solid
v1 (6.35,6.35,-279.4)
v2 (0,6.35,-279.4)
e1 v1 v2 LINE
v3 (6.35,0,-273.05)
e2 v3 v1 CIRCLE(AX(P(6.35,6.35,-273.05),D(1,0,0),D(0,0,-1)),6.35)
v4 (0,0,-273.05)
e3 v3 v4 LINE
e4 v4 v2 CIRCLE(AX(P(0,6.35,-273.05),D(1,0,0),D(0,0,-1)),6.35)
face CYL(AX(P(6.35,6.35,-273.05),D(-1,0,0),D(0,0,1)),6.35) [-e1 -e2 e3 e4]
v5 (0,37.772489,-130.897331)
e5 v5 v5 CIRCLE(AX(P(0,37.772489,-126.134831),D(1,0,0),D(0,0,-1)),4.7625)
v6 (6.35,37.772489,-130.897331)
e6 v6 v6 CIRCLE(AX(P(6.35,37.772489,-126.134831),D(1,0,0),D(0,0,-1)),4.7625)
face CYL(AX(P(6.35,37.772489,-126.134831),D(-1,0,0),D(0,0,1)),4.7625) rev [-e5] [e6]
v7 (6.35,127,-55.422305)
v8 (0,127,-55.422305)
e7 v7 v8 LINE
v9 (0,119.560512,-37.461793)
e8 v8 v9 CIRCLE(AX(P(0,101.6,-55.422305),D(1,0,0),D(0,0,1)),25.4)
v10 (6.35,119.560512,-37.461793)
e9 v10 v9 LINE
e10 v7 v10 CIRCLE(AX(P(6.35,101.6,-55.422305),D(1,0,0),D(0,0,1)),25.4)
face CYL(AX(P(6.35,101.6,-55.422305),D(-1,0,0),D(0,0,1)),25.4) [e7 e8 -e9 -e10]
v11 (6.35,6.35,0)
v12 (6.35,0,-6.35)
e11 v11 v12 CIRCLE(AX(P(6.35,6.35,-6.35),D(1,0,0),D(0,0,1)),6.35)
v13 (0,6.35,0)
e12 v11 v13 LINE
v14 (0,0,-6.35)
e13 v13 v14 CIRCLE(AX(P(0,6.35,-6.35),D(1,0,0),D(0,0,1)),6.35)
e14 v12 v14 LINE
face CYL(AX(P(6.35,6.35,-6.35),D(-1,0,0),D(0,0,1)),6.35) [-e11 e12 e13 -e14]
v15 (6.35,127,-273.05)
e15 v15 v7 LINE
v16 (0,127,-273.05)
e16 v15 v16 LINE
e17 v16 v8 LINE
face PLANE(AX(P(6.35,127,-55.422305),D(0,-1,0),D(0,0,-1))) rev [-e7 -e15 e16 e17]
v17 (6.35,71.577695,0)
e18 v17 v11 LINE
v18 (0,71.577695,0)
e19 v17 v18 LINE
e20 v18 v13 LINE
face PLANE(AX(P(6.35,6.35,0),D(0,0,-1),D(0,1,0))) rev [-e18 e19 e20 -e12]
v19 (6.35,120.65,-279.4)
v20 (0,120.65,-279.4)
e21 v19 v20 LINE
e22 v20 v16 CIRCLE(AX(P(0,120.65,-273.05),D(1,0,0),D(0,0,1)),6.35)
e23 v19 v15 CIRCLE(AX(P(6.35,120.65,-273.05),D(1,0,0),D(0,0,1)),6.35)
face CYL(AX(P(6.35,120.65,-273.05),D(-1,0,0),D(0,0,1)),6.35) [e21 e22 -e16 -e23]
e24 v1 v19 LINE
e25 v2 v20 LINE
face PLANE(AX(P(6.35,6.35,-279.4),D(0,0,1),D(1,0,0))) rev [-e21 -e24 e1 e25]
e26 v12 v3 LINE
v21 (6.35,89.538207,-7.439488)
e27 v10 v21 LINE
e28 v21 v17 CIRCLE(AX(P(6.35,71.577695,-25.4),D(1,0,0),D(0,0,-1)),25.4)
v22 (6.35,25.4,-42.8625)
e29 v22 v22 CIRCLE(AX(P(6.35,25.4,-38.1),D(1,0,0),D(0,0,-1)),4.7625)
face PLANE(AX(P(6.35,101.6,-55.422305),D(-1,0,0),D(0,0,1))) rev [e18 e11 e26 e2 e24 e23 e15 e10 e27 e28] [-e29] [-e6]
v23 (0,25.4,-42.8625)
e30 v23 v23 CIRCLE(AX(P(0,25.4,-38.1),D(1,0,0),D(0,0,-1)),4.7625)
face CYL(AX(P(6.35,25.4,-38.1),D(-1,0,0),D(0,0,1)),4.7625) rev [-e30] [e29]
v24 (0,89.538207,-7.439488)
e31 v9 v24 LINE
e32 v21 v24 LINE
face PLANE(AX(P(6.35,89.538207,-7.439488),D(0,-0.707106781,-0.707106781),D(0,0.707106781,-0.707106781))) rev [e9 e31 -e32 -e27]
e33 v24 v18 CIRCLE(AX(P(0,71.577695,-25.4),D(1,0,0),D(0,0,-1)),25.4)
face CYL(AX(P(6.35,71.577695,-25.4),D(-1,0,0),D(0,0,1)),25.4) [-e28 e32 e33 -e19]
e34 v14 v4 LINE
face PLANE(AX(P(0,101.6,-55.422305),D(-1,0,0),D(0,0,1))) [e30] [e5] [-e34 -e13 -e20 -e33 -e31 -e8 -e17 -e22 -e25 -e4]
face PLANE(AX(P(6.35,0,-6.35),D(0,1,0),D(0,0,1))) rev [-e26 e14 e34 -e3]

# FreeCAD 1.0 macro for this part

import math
import FreeCAD as App
import Part
import Sketcher
from FreeCAD import Vector
Q = App.Units.Quantity

doc = App.newDocument("Part")
body = doc.addObject("PartDesign::Body", "Body")

sketch1 = doc.addObject("Sketcher::SketchObject", "Sketch")
body.addObject(sketch1)
sketch1.AttachmentSupport = (doc.YZ_Plane, [""])
sketch1.MapMode = "FlatFace"
sketch1.addGeometry([
    Part.LineSegment(Vector(0, -6.3, 0), Vector(0, -273.1, 0)),
    Part.ArcOfCircle(Part.Circle(Vector(6.3, -273.1, 0), Vector(0, 0, 1), 6.3), math.radians(180), math.radians(270)),
    Part.LineSegment(Vector(6.3, -279.4, 0), Vector(120.7, -279.4, 0)),
    Part.ArcOfCircle(Part.Circle(Vector(120.7, -273.1, 0), Vector(0, 0, 1), 6.3), math.radians(-90), math.radians(0)),
    Part.LineSegment(Vector(127, -273.1, 0), Vector(127, -55.4, 0)),
    Part.ArcOfCircle(Part.Circle(Vector(101.6, -55.4, 0), Vector(0, 0, 1), 25.4), math.radians(0), math.radians(45)),
    Part.LineSegment(Vector(119.6, -37.5, 0), Vector(89.5, -7.4, 0)),
    Part.ArcOfCircle(Part.Circle(Vector(71.6, -25.4, 0), Vector(0, 0, 1), 25.4), math.radians(45), math.radians(90)),
    Part.LineSegment(Vector(71.6, 0, 0), Vector(6.3, 0, 0)),
    Part.ArcOfCircle(Part.Circle(Vector(6.3, -6.3, 0), Vector(0, 0, 1), 6.3), math.radians(90), math.radians(180)),
    Part.Circle(Vector(25.4, -38.1, 0), Vector(0, 0, 1), 4.8),
    Part.Circle(Vector(37.8, -126.1, 0), Vector(0, 0, 1), 4.8),
], False)
sketch1.addConstraint([
    Sketcher.Constraint("Tangent", 0, 2, 1, 1),
    Sketcher.Constraint("Tangent", 1, 2, 2, 1),
    Sketcher.Constraint("Tangent", 2, 2, 3, 1),
    Sketcher.Constraint("Tangent", 3, 2, 4, 1),
    Sketcher.Constraint("Tangent", 4, 2, 5, 1),
    Sketcher.Constraint("Tangent", 5, 2, 6, 1),
    Sketcher.Constraint("Tangent", 6, 2, 7, 1),
    Sketcher.Constraint("Tangent", 7, 2, 8, 1),
    Sketcher.Constraint("Tangent", 8, 2, 9, 1),
    Sketcher.Constraint("Tangent", 9, 2, 0, 1),
    Sketcher.Constraint("Vertical", 0),
    Sketcher.Constraint("Horizontal", 2),
    Sketcher.Constraint("Vertical", 4),
    Sketcher.Constraint("Horizontal", 8),
    Sketcher.Constraint("Equal", 1, 3),
    Sketcher.Constraint("Equal", 5, 7),
    Sketcher.Constraint("Equal", 3, 9),
    Sketcher.Constraint("Equal", 10, 11),
    Sketcher.Constraint("PointOnObject", 0, 2, -2),
    Sketcher.Constraint("PointOnObject", 7, 2, -1),
    Sketcher.Constraint("Radius", 5, Q("1 in")),
    Sketcher.Constraint("Radius", 1, Q("0.25 in")),
    Sketcher.Constraint("Diameter", 10, Q("0.375 in")),
    Sketcher.Constraint("DistanceX", 2, 1, 2, 2, Q("4.5 in")),
    Sketcher.Constraint("DistanceY", 0, 2, 0, 1, Q("10.5 in")),
    Sketcher.Constraint("DistanceX", -1, 1, 10, 3, Q("1 in")),
    Sketcher.Constraint("Angle", 6, Q("135 deg")),
    Sketcher.Constraint("DistanceY", 10, 3, -1, 1, Q("1.5 in")),
    Sketcher.Constraint("Distance", 6, 42.457951),
    Sketcher.Constraint("DistanceX", -1, 1, 11, 3, 37.772489),
    Sketcher.Constraint("DistanceY", 11, 3, -1, 1, 126.134831),
])
pad1 = doc.addObject("PartDesign::Pad", "Pad")
body.addObject(pad1)
pad1.Profile = sketch1
pad1.Length = Q("0.25 in")

doc.recompute()
